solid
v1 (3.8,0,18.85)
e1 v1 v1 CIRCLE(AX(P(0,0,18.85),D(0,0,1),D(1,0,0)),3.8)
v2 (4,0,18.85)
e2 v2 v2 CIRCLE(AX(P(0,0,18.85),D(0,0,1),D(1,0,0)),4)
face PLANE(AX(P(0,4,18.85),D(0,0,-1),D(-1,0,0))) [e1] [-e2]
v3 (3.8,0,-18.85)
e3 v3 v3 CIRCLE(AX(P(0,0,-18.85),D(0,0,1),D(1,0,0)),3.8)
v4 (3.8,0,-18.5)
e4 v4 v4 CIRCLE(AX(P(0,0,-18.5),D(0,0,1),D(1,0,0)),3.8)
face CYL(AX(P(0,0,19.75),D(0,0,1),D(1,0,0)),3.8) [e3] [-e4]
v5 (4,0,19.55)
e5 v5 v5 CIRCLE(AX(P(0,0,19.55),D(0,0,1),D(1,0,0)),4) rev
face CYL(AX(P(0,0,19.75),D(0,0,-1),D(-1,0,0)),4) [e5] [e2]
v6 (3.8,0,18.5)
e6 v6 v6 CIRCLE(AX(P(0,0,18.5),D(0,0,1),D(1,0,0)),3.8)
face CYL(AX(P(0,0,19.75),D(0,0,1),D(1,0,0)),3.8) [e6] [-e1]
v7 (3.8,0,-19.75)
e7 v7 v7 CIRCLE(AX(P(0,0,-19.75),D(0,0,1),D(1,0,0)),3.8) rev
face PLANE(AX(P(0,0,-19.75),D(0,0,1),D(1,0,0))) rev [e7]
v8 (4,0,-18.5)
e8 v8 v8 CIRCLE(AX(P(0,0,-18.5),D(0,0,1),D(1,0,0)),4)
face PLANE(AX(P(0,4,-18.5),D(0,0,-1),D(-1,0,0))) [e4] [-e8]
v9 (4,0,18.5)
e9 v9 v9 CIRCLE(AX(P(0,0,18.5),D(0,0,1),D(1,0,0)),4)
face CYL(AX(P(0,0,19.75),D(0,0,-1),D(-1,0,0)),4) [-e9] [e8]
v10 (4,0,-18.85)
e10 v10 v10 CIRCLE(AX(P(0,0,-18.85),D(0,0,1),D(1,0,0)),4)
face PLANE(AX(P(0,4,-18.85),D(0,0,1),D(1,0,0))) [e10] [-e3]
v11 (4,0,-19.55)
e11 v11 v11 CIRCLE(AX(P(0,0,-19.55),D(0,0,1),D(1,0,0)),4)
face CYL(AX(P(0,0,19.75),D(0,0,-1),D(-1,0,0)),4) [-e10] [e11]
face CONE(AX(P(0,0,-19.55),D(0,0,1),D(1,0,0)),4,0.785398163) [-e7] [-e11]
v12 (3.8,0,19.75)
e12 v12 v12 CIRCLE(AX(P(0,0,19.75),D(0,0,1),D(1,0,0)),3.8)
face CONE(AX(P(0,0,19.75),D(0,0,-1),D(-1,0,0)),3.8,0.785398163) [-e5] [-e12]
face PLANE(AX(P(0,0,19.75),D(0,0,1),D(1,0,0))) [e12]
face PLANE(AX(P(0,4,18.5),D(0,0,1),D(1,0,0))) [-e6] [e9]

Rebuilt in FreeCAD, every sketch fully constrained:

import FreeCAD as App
import Part
import Sketcher

V = App.Vector
Q = App.Units.Quantity


def edges_at(feature, points):
    """Names of the edges that pass closest to the given points."""
    edges = feature.Shape.Edges
    near = lambda p: min(range(len(edges)), key=lambda i: edges[i].distToShape(Part.Vertex(*p))[0])
    return sorted({f"Edge{near(p) + 1}" for p in points})

doc = App.newDocument("Part")
body = doc.addObject("PartDesign::Body", "Body")

# Sketch on XY plane
sketch1 = body.newObject("Sketcher::SketchObject", "Sketch")
sketch1.AttachmentSupport = (doc.getObject("XY_Plane"), [""])
sketch1.MapMode = "FlatFace"
sketch1.addGeometry(Part.Circle(V(0, 0, 0), V(0, 0, 1), 4), False)
sketch1.addConstraint([
    Sketcher.Constraint("Coincident", 0, 3, -1, 1),
    Sketcher.Constraint("Diameter", 0, Q("8 mm")),
])
pad1 = body.newObject("PartDesign::Pad", "Pad")
pad1.Profile = sketch1
pad1.Length = 39.5
pad1.Midplane = True

# Sketch on YZ plane
sketch2 = body.newObject("Sketcher::SketchObject", "Sketch001")
sketch2.AttachmentSupport = (doc.getObject("YZ_Plane"), [""])
sketch2.MapMode = "FlatFace"
sketch2.addGeometry([
    Part.LineSegment(V(4, 18.85, 0), V(3.8, 18.85, 0)),  # 0
    Part.LineSegment(V(3.8, 18.85, 0), V(3.8, 18.5, 0)),  # 1
    Part.LineSegment(V(3.8, 18.5, 0), V(4, 18.5, 0)),  # 2
    Part.LineSegment(V(4, 18.5, 0), V(4, 18.85, 0)),  # 3
    Part.LineSegment(V(4, -18.5, 0), V(3.8, -18.5, 0)),  # 4
    Part.LineSegment(V(3.8, -18.5, 0), V(3.8, -18.85, 0)),  # 5
    Part.LineSegment(V(3.8, -18.85, 0), V(4, -18.85, 0)),  # 6
    Part.LineSegment(V(4, -18.85, 0), V(4, -18.5, 0)),  # 7
], False)
sketch2.addConstraint([
    Sketcher.Constraint("Coincident", 0, 2, 1, 1),
    Sketcher.Constraint("Coincident", 1, 2, 2, 1),
    Sketcher.Constraint("Coincident", 2, 2, 3, 1),
    Sketcher.Constraint("Coincident", 3, 2, 0, 1),
    Sketcher.Constraint("Coincident", 4, 2, 5, 1),
    Sketcher.Constraint("Coincident", 5, 2, 6, 1),
    Sketcher.Constraint("Coincident", 6, 2, 7, 1),
    Sketcher.Constraint("Coincident", 7, 2, 4, 1),
    Sketcher.Constraint("Horizontal", 0),
    Sketcher.Constraint("Vertical", 1),
    Sketcher.Constraint("Horizontal", 2),
    Sketcher.Constraint("Vertical", 3),
    Sketcher.Constraint("Horizontal", 4),
    Sketcher.Constraint("Vertical", 5),
    Sketcher.Constraint("Horizontal", 6),
    Sketcher.Constraint("Vertical", 7),
    Sketcher.Constraint("Symmetric", 1, 2, 4, 2, -1),
    Sketcher.Constraint("Symmetric", 3, 2, 6, 2, -1),
    Sketcher.Constraint("DistanceX", 0, 2, 0, 1, Q("0.2 mm")),
    Sketcher.Constraint("DistanceX", -1, 1, 2, 2, Q("4 mm")),
    Sketcher.Constraint("DistanceY", 4, 2, 1, 2, Q("37 mm")),
    Sketcher.Constraint("DistanceY", 1, 2, 1, 1, Q("0.35 mm")),
])
groove = body.newObject("PartDesign::Groove", "Groove")
groove.Profile = sketch2
groove.ReferenceAxis = (sketch2, ["V_Axis"])
groove.Angle = 360
doc.recompute()

chamfer = body.newObject("PartDesign::Chamfer", "Chamfer")
chamfer.Base = (groove, edges_at(groove, [(-4, 0, -19.75), (-4, 0, 19.75)]))
chamfer.Size = 0.2

doc.recompute()
